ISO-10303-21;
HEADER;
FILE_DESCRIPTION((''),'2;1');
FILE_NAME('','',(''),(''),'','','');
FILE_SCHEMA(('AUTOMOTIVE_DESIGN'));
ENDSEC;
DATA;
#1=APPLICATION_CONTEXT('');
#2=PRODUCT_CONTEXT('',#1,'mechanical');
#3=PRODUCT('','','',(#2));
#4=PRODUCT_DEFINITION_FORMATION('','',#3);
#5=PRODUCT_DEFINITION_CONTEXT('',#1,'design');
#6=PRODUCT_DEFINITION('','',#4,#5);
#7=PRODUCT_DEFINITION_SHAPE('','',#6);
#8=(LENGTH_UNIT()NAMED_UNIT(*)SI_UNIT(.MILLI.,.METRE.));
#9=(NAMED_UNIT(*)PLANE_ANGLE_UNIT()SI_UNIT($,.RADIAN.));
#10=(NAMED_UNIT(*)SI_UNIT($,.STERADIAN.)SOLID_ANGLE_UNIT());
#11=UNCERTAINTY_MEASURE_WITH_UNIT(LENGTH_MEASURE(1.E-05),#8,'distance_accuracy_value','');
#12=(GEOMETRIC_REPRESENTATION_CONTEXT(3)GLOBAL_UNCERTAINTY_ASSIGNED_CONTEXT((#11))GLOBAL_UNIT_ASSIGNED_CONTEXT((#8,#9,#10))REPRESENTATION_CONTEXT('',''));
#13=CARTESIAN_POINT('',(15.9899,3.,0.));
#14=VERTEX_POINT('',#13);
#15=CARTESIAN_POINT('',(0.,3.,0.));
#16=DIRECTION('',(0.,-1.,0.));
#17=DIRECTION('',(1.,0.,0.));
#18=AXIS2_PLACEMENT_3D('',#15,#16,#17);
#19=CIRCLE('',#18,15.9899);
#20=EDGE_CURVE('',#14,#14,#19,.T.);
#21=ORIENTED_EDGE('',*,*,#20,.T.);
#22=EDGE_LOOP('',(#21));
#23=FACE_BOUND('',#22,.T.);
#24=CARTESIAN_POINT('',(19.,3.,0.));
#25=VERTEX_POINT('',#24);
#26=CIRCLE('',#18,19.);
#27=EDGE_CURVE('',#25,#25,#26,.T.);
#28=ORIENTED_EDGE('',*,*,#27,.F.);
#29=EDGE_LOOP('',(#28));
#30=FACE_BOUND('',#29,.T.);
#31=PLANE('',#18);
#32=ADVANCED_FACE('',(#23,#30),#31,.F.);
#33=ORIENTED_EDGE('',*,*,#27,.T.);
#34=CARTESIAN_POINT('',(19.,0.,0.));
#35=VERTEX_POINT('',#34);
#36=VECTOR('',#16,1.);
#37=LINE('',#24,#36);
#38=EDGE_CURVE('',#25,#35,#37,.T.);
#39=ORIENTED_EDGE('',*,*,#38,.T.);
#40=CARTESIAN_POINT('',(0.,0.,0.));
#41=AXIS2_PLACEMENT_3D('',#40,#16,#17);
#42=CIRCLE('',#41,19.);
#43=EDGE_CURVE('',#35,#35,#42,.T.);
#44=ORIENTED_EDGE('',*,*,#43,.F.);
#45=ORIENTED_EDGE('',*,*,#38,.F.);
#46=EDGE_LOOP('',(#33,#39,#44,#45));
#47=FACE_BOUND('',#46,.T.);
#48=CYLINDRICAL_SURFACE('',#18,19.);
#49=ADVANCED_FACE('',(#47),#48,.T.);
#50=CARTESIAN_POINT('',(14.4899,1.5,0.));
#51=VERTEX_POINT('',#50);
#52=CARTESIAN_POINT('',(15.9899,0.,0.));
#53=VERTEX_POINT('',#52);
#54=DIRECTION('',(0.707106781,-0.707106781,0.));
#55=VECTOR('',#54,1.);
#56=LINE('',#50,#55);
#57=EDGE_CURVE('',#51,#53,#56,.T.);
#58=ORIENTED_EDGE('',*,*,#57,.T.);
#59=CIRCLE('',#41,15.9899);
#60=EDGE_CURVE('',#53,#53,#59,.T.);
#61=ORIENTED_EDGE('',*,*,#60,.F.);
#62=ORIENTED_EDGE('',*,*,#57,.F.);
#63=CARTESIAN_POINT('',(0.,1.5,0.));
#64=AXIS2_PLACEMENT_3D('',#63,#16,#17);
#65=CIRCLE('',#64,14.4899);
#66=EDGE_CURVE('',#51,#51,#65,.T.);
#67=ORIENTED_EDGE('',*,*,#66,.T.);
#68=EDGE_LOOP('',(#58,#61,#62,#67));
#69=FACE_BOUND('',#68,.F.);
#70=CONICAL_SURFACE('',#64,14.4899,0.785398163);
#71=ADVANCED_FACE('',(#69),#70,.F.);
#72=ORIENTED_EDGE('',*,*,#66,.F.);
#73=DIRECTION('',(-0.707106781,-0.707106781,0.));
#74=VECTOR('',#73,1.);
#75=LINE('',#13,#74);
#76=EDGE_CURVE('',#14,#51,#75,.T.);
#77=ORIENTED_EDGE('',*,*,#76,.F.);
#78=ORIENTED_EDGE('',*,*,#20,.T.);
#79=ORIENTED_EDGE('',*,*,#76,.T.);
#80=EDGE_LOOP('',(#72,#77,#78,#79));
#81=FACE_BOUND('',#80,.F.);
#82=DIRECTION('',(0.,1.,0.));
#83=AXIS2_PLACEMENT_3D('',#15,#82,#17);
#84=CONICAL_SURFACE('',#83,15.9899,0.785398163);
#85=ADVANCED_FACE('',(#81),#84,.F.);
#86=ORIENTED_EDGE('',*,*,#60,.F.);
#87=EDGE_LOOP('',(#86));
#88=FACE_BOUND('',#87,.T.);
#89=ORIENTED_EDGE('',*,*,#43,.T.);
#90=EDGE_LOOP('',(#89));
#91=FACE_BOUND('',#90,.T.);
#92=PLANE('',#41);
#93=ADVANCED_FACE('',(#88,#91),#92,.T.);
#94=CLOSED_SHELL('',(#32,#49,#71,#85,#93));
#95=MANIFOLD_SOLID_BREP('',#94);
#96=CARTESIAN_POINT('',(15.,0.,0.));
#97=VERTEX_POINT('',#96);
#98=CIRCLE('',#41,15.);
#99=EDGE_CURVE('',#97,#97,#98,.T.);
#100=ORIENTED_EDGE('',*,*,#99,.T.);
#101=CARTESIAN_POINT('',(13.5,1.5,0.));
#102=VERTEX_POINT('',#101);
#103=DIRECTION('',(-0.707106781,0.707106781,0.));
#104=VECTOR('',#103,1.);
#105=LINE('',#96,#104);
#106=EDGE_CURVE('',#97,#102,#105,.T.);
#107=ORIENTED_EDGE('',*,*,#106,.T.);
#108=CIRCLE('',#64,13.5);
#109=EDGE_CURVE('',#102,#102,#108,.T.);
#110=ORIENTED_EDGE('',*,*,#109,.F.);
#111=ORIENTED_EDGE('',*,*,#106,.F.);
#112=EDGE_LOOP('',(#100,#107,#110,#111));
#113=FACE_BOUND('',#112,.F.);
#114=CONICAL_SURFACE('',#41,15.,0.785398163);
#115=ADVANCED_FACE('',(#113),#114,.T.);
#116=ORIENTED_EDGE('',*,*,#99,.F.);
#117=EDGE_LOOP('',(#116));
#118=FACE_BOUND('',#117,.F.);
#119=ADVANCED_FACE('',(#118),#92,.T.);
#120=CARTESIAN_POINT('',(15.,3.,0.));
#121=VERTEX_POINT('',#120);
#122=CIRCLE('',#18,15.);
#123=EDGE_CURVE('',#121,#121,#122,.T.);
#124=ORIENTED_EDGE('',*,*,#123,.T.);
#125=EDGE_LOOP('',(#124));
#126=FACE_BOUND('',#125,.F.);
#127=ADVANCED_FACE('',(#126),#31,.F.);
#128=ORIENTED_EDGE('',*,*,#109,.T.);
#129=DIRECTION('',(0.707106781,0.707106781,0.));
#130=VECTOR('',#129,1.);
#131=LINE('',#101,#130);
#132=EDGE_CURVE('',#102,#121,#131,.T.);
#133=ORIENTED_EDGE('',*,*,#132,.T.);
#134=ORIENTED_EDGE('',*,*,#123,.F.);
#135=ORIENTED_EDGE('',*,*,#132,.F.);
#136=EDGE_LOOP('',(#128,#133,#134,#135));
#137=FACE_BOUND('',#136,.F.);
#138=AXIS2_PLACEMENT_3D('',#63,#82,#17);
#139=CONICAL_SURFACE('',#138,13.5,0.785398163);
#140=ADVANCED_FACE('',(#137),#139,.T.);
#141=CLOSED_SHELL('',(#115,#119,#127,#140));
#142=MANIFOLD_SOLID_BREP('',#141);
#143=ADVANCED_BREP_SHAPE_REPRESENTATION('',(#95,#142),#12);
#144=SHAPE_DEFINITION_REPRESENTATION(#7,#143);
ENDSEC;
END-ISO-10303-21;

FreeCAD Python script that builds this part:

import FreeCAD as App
import Part
import Sketcher

doc = App.newDocument("Part")
params = doc.addObject("Spreadsheet::Sheet", "Params")
for row, (alias, value) in enumerate([
    ("sketch1_height", "3 mm"),
    ("sketch1_width", "15 mm"),
    ("sketch1_width2", "3.01 mm"),
    ("revolution_angle", "360 deg"),
], start=1):
    params.set(f"A{row}", alias)
    params.set(f"B{row}", "=" + value)
    params.setAlias(f"B{row}", alias)

body = doc.addObject("PartDesign::Body", "Body")
body.AllowCompound = True

sketch1 = body.newObject("Sketcher::SketchObject", "Sketch")
sketch1.AttachmentSupport = (doc.getObject("XY_Plane"), [""])
sketch1.MapMode = "FlatFace"
sketch1.addGeometry(Part.LineSegment(App.Vector(0, 3, 0), App.Vector(0, 0, 0)), False)
sketch1.addGeometry(Part.LineSegment(App.Vector(0, 0, 0), App.Vector(15, 0, 0)), False)
sketch1.addGeometry(Part.LineSegment(App.Vector(15, 0, 0), App.Vector(13.5, 1.5, 0)), False)
sketch1.addGeometry(Part.LineSegment(App.Vector(13.5, 1.5, 0), App.Vector(15, 3, 0)), False)
sketch1.addGeometry(Part.LineSegment(App.Vector(15, 3, 0), App.Vector(0, 3, 0)), False)
sketch1.addGeometry(Part.LineSegment(App.Vector(19, 3, 0), App.Vector(16, 3, 0)), False)
sketch1.addGeometry(Part.LineSegment(App.Vector(16, 3, 0), App.Vector(14.5, 1.5, 0)), False)
sketch1.addGeometry(Part.LineSegment(App.Vector(14.5, 1.5, 0), App.Vector(16, 0, 0)), False)
sketch1.addGeometry(Part.LineSegment(App.Vector(16, 0, 0), App.Vector(19, 0, 0)), False)
sketch1.addGeometry(Part.LineSegment(App.Vector(19, 0, 0), App.Vector(19, 3, 0)), False)
sketch1.addConstraint(Sketcher.Constraint("Coincident", 0, 2, 1, 1))
sketch1.addConstraint(Sketcher.Constraint("Coincident", 1, 2, 2, 1))
sketch1.addConstraint(Sketcher.Constraint("Coincident", 2, 2, 3, 1))
sketch1.addConstraint(Sketcher.Constraint("Coincident", 3, 2, 4, 1))
sketch1.addConstraint(Sketcher.Constraint("Coincident", 4, 2, 0, 1))
sketch1.addConstraint(Sketcher.Constraint("Coincident", 5, 2, 6, 1))
sketch1.addConstraint(Sketcher.Constraint("Coincident", 6, 2, 7, 1))
sketch1.addConstraint(Sketcher.Constraint("Coincident", 7, 2, 8, 1))
sketch1.addConstraint(Sketcher.Constraint("Coincident", 8, 2, 9, 1))
sketch1.addConstraint(Sketcher.Constraint("Coincident", 9, 2, 5, 1))
sketch1.addConstraint(Sketcher.Constraint("Vertical", 0))
sketch1.addConstraint(Sketcher.Constraint("Horizontal", 1))
sketch1.addConstraint(Sketcher.Constraint("Horizontal", 4))
sketch1.addConstraint(Sketcher.Constraint("Horizontal", 5))
sketch1.addConstraint(Sketcher.Constraint("Horizontal", 8))
sketch1.addConstraint(Sketcher.Constraint("Vertical", 9))
sketch1.addConstraint(Sketcher.Constraint("Coincident", 0, 2, -1, 1))
sketch1.addConstraint(Sketcher.Constraint("PointOnObject", 7, 2, -1))
sketch1.addConstraint(Sketcher.Constraint("Perpendicular", 2, 3))
sketch1.addConstraint(Sketcher.Constraint("Parallel", 3, 6))
sketch1.addConstraint(Sketcher.Constraint("Perpendicular", 6, 7))
sketch1.addConstraint(Sketcher.Constraint("Horizontal", 4, 2, 5, 2))
sketch1.addConstraint(Sketcher.Constraint("Horizontal", 2, 2, 6, 2))
sketch1.addConstraint(Sketcher.Constraint("Vertical", 1, 2, 3, 2))
sketch1.addConstraint(Sketcher.Constraint("Equal", 2, 3))
sketch1.addConstraint(Sketcher.Constraint("DistanceY", 0, 2, 0, 1, 3.0))
sketch1.addConstraint(Sketcher.Constraint("DistanceX", 1, 1, 1, 2, 15.0))
sketch1.addConstraint(Sketcher.Constraint("DistanceX", -1, 1, 8, 2, 19.0))
sketch1.addConstraint(Sketcher.Constraint("DistanceX", 5, 2, 5, 1, 3.01))
sketch1.setExpression("Constraints[25]", "Params.sketch1_height")
sketch1.setExpression("Constraints[26]", "Params.sketch1_width")
sketch1.setExpression("Constraints[28]", "Params.sketch1_width2")
revolution = body.newObject("PartDesign::Revolution", "Revolution")
revolution.Profile = sketch1
revolution.ReferenceAxis = (sketch1, ["V_Axis"])
revolution.setExpression("Angle", "Params.revolution_angle")

doc.recompute()
